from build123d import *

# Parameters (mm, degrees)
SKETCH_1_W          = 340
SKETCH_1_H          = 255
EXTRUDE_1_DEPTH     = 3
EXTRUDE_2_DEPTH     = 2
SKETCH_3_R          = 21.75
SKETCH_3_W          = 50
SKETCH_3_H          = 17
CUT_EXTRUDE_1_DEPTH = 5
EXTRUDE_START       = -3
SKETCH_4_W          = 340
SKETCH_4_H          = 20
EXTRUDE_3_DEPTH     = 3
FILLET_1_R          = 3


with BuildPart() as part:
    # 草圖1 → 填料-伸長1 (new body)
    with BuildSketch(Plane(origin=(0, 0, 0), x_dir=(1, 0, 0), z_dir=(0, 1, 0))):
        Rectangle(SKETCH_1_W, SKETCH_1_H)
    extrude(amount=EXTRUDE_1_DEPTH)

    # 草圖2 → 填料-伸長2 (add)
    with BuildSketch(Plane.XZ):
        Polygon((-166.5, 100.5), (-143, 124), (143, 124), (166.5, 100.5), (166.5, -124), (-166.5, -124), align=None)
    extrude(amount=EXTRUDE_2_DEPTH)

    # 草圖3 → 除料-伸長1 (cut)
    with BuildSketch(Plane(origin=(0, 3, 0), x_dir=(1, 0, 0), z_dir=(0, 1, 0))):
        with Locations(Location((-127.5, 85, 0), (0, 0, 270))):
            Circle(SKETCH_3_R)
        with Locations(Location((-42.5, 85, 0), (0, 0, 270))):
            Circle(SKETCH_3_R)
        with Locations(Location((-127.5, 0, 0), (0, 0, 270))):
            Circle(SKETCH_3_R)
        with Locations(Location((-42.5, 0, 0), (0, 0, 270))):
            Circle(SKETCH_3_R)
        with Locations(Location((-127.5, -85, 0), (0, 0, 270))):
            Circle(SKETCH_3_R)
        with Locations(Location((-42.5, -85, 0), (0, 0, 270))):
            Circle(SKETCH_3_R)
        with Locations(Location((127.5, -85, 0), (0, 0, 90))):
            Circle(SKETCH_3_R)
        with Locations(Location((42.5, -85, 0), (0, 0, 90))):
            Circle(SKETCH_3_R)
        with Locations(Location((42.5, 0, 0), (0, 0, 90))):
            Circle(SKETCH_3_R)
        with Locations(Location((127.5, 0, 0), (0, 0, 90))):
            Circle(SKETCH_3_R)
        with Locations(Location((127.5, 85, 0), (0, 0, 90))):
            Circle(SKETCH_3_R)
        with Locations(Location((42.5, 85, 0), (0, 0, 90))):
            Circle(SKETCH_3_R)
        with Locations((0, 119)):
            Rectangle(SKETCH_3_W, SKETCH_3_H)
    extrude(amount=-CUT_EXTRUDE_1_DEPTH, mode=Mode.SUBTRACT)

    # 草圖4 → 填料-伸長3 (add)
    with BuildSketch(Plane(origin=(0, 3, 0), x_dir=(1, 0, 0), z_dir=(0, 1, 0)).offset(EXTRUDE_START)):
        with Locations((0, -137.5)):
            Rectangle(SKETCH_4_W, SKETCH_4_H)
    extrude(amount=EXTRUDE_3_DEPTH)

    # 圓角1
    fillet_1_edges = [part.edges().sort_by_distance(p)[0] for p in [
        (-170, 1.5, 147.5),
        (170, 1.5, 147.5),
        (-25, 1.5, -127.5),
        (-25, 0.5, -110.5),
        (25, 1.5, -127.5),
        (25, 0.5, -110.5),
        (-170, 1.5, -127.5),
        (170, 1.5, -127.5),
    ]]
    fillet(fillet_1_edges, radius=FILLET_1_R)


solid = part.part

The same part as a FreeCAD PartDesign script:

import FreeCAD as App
import Part
import Sketcher


def edges_at(feature, points):
    """Names of the edges that pass closest to the given points."""
    edges = feature.Shape.Edges
    near = lambda p: min(range(len(edges)), key=lambda i: edges[i].distToShape(Part.Vertex(*p))[0])
    return sorted({f"Edge{near(p) + 1}" for p in points})


def add_polygon(sketch, points):
    """Adds a closed chain of lines whose ends are joined by coincident constraints."""
    first, n = sketch.GeometryCount, len(points)
    for a, b in zip(points, points[1:] + points[:1]):
        sketch.addGeometry(Part.LineSegment(App.Vector(*a, 0), App.Vector(*b, 0)), False)
    for i in range(n):
        sketch.addConstraint(Sketcher.Constraint("Coincident", first + i, 2, first + (i + 1) % n, 1))

doc = App.newDocument("Part")
params = doc.addObject("Spreadsheet::Sheet", "Params")
for row, (alias, value) in enumerate([
    ("sketch1_width", "340 mm"),
    ("sketch1_height", "255 mm"),
    ("pad1_length", "3 mm"),
    ("sketch2_width", "333 mm"),
    ("sketch2_width2", "286 mm"),
    ("sketch2_height", "224.5 mm"),
    ("pad2_length", "2 mm"),
    ("sketch3_diameter", "43.5 mm"),
    ("sketch3_width", "50 mm"),
    ("sketch3_height", "17 mm"),
    ("pocket1_length", "5 mm"),
    ("sketch4_width", "340 mm"),
    ("sketch4_height", "20 mm"),
    ("pad3_length", "3 mm"),
    ("fillet_radius", "3 mm"),
], start=1):
    params.set(f"A{row}", alias)
    params.set(f"B{row}", "=" + value)
    params.setAlias(f"B{row}", alias)

body = doc.addObject("PartDesign::Body", "Body")

sketch1 = doc.addObject("Sketcher::SketchObject", "Sketch")
body.addObject(sketch1)
sketch1.AttachmentSupport = (doc.XZ_Plane, [""])
sketch1.MapMode = "FlatFace"
add_polygon(sketch1, [(-170, -127.5), (-170, 127.5), (170, 127.5), (170, -127.5)])
sketch1.addConstraint([
    Sketcher.Constraint("Vertical", 0),
    Sketcher.Constraint("Horizontal", 1),
    Sketcher.Constraint("Vertical", 2),
    Sketcher.Constraint("Horizontal", 3),
    Sketcher.Constraint("Symmetric", 0, 2, 2, 2, -1, 1),
    Sketcher.Constraint("DistanceX", 1, 1, 1, 2, 340.0),
    Sketcher.Constraint("DistanceY", 0, 1, 0, 2, 255.0),
])
sketch1.setExpression("Constraints[9]", "Params.sketch1_width")
sketch1.setExpression("Constraints[10]", "Params.sketch1_height")
pad1 = doc.addObject("PartDesign::Pad", "Pad")
body.addObject(pad1)
pad1.Profile = sketch1
pad1.setExpression("Length", "Params.pad1_length")
pad1.Reversed = True

sketch2 = doc.addObject("Sketcher::SketchObject", "Sketch001")
body.addObject(sketch2)
sketch2.AttachmentSupport = (doc.XZ_Plane, [""])
sketch2.MapMode = "FlatFace"
add_polygon(sketch2, [(-143, 124), (-166.5, 100.5), (-166.5, -124), (166.5, -124), (166.5, 100.5), (143, 124)])
sketch2.addConstraint([
    Sketcher.Constraint("Vertical", 1),
    Sketcher.Constraint("Horizontal", 2),
    Sketcher.Constraint("Vertical", 3),
    Sketcher.Constraint("Horizontal", 5),
    Sketcher.Constraint("Symmetric", 0, 2, 3, 2, -2),
    Sketcher.Constraint("Perpendicular", 0, 4),
    Sketcher.Constraint("Equal", 0, 4),
    Sketcher.Constraint("DistanceX", 2, 1, 2, 2, 333.0),
    Sketcher.Constraint("DistanceX", 5, 2, 5, 1, 286.0),
    Sketcher.Constraint("DistanceY", 1, 2, 1, 1, 224.5),
    Sketcher.Constraint("DistanceY", 1, 2, -1, 1, 124.0),
])
sketch2.setExpression("Constraints[13]", "Params.sketch2_width")
sketch2.setExpression("Constraints[14]", "Params.sketch2_width2")
sketch2.setExpression("Constraints[15]", "Params.sketch2_height")
pad2 = doc.addObject("PartDesign::Pad", "Pad001")
body.addObject(pad2)
pad2.Profile = sketch2
pad2.setExpression("Length", "Params.pad2_length")

sketch3 = doc.addObject("Sketcher::SketchObject", "Sketch002")
body.addObject(sketch3)
sketch3.AttachmentSupport = (doc.XZ_Plane, [""])
sketch3.MapMode = "FlatFace"
sketch3.AttachmentOffset = App.Placement(App.Vector(0, 0, -3), App.Rotation())
sketch3.addGeometry(Part.Circle(App.Vector(-127.5, -85, 0), App.Vector(0, 0, 1), 21.75), False)
sketch3.addGeometry(Part.Circle(App.Vector(-42.5, -85, 0), App.Vector(0, 0, 1), 21.75), False)
sketch3.addGeometry(Part.Circle(App.Vector(-127.5, 0, 0), App.Vector(0, 0, 1), 21.75), False)
sketch3.addGeometry(Part.Circle(App.Vector(-42.5, 0, 0), App.Vector(0, 0, 1), 21.75), False)
sketch3.addGeometry(Part.Circle(App.Vector(-127.5, 85, 0), App.Vector(0, 0, 1), 21.75), False)
sketch3.addGeometry(Part.Circle(App.Vector(-42.5, 85, 0), App.Vector(0, 0, 1), 21.75), False)
sketch3.addGeometry(Part.Circle(App.Vector(127.5, 85, 0), App.Vector(0, 0, 1), 21.75), False)
sketch3.addGeometry(Part.Circle(App.Vector(42.5, 85, 0), App.Vector(0, 0, 1), 21.75), False)
sketch3.addGeometry(Part.Circle(App.Vector(42.5, 0, 0), App.Vector(0, 0, 1), 21.75), False)
sketch3.addGeometry(Part.Circle(App.Vector(127.5, 0, 0), App.Vector(0, 0, 1), 21.75), False)
sketch3.addGeometry(Part.Circle(App.Vector(127.5, -85, 0), App.Vector(0, 0, 1), 21.75), False)
sketch3.addGeometry(Part.Circle(App.Vector(42.5, -85, 0), App.Vector(0, 0, 1), 21.75), False)
add_polygon(sketch3, [(-25, -127.5), (-25, -110.5), (25, -110.5), (25, -127.5)])
sketch3.addConstraint([
    Sketcher.Constraint("Vertical", 12),
    Sketcher.Constraint("Horizontal", 13),
    Sketcher.Constraint("Vertical", 14),
    Sketcher.Constraint("Horizontal", 15),
    Sketcher.Constraint("Equal", 0, 1),
    Sketcher.Constraint("Equal", 1, 2),
    Sketcher.Constraint("Equal", 2, 3),
    Sketcher.Constraint("Equal", 3, 4),
    Sketcher.Constraint("Equal", 4, 5),
    Sketcher.Constraint("Equal", 5, 6),
    Sketcher.Constraint("Equal", 6, 7),
    Sketcher.Constraint("Equal", 7, 8),
    Sketcher.Constraint("Equal", 8, 9),
    Sketcher.Constraint("Equal", 9, 10),
    Sketcher.Constraint("Equal", 10, 11),
    Sketcher.Constraint("Symmetric", 0, 3, 6, 3, -1, 1),
    Sketcher.Constraint("Symmetric", 1, 3, 7, 3, -1, 1),
    Sketcher.Constraint("Symmetric", 3, 3, 8, 3, -1, 1),
    Sketcher.Constraint("Symmetric", 2, 3, 9, 3, -1, 1),
    Sketcher.Constraint("Symmetric", 4, 3, 10, 3, -1, 1),
    Sketcher.Constraint("Symmetric", 5, 3, 11, 3, -1, 1),
    Sketcher.Constraint("Symmetric", 4, 3, 6, 3, -2),
    Sketcher.Constraint("Symmetric", 5, 3, 7, 3, -2),
    Sketcher.Constraint("PointOnObject", 2, 3, -1),
    Sketcher.Constraint("PointOnObject", 3, 3, -1),
    Sketcher.Constraint("Horizontal", 0, 3, 1, 3),
    Sketcher.Constraint("Vertical", 0, 3, 2, 3),
    Sketcher.Constraint("Vertical", 1, 3, 3, 3),
    Sketcher.Constraint("Diameter", 0, 43.5),
    Sketcher.Constraint("DistanceX", 13, 1, 13, 2, 50.0),
    Sketcher.Constraint("DistanceY", 12, 1, 12, 2, 17.0),
    Sketcher.Constraint("DistanceY", 0, 3, -1, 1, 85.0),
    Sketcher.Constraint("DistanceX", 12, 2, -1, 1, 25.0),
    Sketcher.Constraint("DistanceX", 0, 3, 1, 3, 85.0),
    Sketcher.Constraint("DistanceX", 5, 3, 6, 3, 170.0),
    Sketcher.Constraint("DistanceY", 12, 2, -1, 1, 110.5),
])
sketch3.setExpression("Constraints[32]", "Params.sketch3_diameter")
sketch3.setExpression("Constraints[33]", "Params.sketch3_width")
sketch3.setExpression("Constraints[34]", "Params.sketch3_height")
pocket1 = doc.addObject("PartDesign::Pocket", "Pocket")
body.addObject(pocket1)
pocket1.Profile = sketch3
pocket1.setExpression("Length", "Params.pocket1_length")
pocket1.Reversed = True

sketch4 = doc.addObject("Sketcher::SketchObject", "Sketch003")
body.addObject(sketch4)
sketch4.AttachmentSupport = (doc.XZ_Plane, [""])
sketch4.MapMode = "FlatFace"
add_polygon(sketch4, [(-170, 127.5), (-170, 147.5), (170, 147.5), (170, 127.5)])
sketch4.addConstraint([
    Sketcher.Constraint("Vertical", 0),
    Sketcher.Constraint("Horizontal", 1),
    Sketcher.Constraint("Vertical", 2),
    Sketcher.Constraint("Horizontal", 3),
    Sketcher.Constraint("DistanceX", 1, 1, 1, 2, 340.0),
    Sketcher.Constraint("DistanceY", 0, 1, 0, 2, 20.0),
    Sketcher.Constraint("DistanceX", 0, 2, -1, 1, 170.0),
    Sketcher.Constraint("DistanceY", -1, 1, 0, 2, 147.5),
])
sketch4.setExpression("Constraints[8]", "Params.sketch4_width")
sketch4.setExpression("Constraints[9]", "Params.sketch4_height")
pad3 = doc.addObject("PartDesign::Pad", "Pad002")
body.addObject(pad3)
pad3.Profile = sketch4
pad3.setExpression("Length", "Params.pad3_length")
pad3.Reversed = True
doc.recompute()

fillet = doc.addObject("PartDesign::Fillet", "Fillet")
body.addObject(fillet)
fillet.Base = (pad3, edges_at(pad3, [
    (-170, 1.5, 147.5),
    (170, 1.5, 147.5),
    (-25, 1.5, -127.5),
    (-25, 0.5, -110.5),
    (25, 1.5, -127.5),
    (25, 0.5, -110.5),
    (-170, 1.5, -127.5),
    (170, 1.5, -127.5),
]))
fillet.setExpression("Radius", "Params.fillet_radius")

doc.recompute()
